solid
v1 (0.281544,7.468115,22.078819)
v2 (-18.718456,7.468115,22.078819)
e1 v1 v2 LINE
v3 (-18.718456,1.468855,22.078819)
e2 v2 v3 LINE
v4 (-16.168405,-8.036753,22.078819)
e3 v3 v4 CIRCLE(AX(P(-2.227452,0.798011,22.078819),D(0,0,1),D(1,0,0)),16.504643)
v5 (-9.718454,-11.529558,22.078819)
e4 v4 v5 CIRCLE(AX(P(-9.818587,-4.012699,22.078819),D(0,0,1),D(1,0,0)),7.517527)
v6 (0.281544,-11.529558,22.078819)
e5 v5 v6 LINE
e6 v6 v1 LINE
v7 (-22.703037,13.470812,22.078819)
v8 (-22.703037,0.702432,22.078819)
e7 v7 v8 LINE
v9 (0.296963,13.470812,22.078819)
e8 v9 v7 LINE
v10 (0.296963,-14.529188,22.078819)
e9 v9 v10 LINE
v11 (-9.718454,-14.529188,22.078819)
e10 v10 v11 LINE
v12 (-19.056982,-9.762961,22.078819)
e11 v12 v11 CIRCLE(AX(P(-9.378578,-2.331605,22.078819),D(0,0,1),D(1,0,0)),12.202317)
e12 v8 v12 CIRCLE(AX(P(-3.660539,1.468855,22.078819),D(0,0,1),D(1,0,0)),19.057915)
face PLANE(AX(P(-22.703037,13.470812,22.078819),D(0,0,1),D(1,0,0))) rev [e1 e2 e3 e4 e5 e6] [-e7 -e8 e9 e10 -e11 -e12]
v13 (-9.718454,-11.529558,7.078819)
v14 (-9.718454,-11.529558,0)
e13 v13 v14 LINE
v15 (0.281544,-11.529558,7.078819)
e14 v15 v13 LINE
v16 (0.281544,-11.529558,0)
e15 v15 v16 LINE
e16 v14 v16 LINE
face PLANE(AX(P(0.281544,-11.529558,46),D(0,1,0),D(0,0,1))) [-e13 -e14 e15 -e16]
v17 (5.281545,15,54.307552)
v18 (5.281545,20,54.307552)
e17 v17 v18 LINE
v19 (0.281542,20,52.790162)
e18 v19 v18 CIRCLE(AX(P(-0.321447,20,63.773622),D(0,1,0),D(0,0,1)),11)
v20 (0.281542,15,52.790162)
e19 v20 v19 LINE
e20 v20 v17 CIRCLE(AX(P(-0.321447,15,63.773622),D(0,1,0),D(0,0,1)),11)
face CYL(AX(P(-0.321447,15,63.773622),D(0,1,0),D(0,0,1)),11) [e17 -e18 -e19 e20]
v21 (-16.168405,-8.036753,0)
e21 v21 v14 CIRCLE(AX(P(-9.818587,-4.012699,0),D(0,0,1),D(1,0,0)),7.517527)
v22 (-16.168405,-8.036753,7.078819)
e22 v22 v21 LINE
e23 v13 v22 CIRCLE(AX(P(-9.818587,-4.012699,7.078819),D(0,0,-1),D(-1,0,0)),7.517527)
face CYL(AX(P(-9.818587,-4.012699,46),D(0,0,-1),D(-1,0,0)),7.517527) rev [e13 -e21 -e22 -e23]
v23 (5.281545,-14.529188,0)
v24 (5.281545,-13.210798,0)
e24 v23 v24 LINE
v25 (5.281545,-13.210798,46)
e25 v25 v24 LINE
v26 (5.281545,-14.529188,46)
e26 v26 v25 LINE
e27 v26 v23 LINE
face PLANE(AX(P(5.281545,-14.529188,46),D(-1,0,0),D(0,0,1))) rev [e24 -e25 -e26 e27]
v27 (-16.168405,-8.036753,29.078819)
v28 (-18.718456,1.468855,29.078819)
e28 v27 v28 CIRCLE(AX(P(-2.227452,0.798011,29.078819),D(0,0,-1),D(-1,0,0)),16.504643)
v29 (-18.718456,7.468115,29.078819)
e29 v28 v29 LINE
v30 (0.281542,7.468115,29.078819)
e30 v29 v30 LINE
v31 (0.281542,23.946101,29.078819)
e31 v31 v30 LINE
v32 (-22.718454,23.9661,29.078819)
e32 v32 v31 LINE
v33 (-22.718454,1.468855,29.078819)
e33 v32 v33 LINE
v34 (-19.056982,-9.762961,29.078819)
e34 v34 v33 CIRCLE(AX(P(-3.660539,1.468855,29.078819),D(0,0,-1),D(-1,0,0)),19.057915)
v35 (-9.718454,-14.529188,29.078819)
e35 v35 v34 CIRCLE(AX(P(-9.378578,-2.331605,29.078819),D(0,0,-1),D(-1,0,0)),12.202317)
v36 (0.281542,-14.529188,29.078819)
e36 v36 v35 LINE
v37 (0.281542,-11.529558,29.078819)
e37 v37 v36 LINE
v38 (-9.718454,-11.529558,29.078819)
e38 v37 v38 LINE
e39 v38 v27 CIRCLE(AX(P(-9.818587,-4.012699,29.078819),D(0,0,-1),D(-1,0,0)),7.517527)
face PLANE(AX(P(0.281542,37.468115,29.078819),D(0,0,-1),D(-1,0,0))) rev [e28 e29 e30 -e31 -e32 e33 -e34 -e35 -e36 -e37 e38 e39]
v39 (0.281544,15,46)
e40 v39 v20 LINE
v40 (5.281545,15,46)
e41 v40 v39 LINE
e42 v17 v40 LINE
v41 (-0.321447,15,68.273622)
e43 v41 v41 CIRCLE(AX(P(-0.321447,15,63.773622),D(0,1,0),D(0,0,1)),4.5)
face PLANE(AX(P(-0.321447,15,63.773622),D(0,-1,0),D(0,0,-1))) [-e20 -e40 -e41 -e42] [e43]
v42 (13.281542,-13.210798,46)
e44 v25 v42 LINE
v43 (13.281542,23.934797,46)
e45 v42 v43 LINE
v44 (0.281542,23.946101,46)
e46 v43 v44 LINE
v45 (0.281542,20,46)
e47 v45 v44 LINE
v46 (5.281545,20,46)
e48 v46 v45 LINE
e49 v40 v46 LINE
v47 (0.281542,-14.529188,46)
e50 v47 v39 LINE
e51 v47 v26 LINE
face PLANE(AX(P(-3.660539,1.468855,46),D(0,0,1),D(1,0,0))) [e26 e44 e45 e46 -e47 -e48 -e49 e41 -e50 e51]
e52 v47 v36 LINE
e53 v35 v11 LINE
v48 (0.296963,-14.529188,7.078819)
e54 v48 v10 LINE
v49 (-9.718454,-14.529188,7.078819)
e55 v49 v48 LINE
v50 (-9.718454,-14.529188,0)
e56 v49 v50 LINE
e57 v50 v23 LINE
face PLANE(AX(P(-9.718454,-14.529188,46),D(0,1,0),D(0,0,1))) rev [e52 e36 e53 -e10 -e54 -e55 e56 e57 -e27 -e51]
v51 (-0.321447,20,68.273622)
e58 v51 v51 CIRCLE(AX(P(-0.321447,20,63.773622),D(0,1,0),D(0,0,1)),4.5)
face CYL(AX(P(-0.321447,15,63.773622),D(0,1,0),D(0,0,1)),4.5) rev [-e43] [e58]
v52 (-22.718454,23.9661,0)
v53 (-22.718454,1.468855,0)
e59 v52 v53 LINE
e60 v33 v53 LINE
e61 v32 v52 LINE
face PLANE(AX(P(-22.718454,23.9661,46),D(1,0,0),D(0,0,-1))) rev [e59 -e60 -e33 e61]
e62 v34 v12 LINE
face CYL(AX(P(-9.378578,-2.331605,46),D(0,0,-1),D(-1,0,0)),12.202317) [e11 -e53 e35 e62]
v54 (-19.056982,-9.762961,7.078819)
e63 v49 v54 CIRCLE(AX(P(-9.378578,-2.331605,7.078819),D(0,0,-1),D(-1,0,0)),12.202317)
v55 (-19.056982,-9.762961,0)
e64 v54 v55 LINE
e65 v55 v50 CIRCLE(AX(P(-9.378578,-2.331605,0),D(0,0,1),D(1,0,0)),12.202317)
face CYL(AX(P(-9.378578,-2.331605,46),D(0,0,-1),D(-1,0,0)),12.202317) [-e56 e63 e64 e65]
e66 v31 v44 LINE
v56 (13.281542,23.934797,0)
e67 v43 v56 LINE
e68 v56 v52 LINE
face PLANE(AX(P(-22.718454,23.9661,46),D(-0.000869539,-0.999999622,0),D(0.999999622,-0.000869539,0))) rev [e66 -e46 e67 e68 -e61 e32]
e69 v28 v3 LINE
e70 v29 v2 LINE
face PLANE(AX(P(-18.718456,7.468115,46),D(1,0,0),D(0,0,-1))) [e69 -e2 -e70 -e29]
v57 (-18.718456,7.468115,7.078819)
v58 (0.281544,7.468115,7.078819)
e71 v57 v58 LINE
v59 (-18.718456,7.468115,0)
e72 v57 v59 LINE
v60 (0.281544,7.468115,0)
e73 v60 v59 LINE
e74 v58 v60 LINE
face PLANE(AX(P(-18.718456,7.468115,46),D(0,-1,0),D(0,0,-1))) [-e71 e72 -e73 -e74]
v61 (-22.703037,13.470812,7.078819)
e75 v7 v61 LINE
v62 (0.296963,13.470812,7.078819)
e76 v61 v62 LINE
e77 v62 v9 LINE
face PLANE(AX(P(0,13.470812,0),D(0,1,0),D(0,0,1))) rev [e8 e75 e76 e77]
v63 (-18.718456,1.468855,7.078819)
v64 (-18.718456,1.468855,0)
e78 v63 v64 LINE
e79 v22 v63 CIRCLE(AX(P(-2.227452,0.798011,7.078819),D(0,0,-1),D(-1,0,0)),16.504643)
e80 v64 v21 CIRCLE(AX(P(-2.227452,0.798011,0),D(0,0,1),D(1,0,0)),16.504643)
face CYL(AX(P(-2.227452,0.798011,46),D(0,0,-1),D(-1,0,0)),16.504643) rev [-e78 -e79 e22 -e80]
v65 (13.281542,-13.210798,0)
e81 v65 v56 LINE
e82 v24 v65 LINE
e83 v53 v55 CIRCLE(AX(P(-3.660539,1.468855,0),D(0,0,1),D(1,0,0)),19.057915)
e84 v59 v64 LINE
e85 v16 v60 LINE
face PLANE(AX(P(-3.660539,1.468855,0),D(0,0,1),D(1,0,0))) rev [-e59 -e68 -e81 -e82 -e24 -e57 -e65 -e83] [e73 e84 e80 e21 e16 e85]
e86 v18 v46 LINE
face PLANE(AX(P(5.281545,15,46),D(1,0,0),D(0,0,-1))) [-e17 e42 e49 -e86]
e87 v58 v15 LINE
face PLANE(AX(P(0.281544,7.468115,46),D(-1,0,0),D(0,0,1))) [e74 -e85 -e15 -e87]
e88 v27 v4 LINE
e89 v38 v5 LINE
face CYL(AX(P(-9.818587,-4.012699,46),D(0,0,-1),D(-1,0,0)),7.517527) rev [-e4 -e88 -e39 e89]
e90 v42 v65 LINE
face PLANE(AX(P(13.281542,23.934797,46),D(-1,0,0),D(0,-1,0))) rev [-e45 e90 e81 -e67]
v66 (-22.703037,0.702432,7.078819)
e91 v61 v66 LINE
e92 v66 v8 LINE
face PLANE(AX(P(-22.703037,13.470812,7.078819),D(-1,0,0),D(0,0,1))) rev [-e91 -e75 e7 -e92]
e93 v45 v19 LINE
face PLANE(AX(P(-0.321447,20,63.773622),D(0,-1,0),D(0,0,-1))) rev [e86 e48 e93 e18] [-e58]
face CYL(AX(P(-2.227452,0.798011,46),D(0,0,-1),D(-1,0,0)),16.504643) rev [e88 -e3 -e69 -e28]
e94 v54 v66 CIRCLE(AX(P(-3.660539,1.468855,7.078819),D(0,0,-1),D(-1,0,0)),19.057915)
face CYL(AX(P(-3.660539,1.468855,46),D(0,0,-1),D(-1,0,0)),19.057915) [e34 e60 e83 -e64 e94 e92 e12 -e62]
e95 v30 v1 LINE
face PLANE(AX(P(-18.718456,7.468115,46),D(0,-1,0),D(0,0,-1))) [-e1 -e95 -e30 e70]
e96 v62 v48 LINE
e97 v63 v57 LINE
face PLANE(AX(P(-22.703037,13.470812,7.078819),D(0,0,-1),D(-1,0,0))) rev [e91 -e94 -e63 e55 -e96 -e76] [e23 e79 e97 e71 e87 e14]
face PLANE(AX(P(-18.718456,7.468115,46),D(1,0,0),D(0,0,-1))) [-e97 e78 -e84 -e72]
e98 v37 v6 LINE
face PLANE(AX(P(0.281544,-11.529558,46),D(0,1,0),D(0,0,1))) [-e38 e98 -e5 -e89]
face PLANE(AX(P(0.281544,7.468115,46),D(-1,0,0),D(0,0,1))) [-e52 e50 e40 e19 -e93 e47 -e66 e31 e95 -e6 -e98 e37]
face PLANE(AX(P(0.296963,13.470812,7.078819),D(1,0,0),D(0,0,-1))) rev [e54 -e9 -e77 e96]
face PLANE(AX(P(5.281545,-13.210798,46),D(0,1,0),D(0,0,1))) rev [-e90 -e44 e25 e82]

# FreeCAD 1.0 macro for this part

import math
import FreeCAD as App
import Part
import Sketcher
from FreeCAD import Vector
Q = App.Units.Quantity

doc = App.newDocument("Part")
params = doc.addObject("Spreadsheet::Sheet", "Params")
for row, (alias, value) in enumerate([
    ("sketch1_width", "15 mm"),
    ("sketch1_width2", "19 mm"),
    ("sketch1_width3", "9.999998 mm"),
    ("pad1_length", "46 mm"),
    ("sketch2_width", "23 mm"),
    ("sketch2_height", "15 mm"),
    ("pocket1_length", "28 mm"),
    ("sketch4_diameter", "22 mm"),
    ("sketch4_diameter2", "9 mm"),
    ("pad2_length", "5 mm"),
    ("sketch5_radius", "11 mm"),
    ("pad3_length", "5 mm"),
], start=1):
    params.set(f"A{row}", alias)
    params.set(f"B{row}", "=" + value)
    params.setAlias(f"B{row}", alias)

body = doc.addObject("PartDesign::Body", "Body")

sketch1 = body.newObject("Sketcher::SketchObject", "Sketch")
sketch1.AttachmentSupport = (doc.getObject("XY_Plane"), [""])
sketch1.MapMode = "FlatFace"
sketch1.addGeometry([
    Part.LineSegment(Vector(13.3, 23.9, 0), Vector(-22.7, 24, 0)),
    Part.LineSegment(Vector(-22.7, 24, 0), Vector(-22.7, 1.5, 0)),
    Part.ArcOfCircle(Part.Circle(Vector(-3.7, 1.5, 0), Vector(0, 0, 1), 19.1), math.radians(180), math.radians(216)),
    Part.ArcOfCircle(Part.Circle(Vector(-9.4, -2.3, 0), Vector(0, 0, 1), 12.2), math.radians(-142), math.radians(-92)),
    Part.LineSegment(Vector(-9.7, -14.5, 0), Vector(5.3, -14.5, 0)),
    Part.LineSegment(Vector(5.3, -14.5, 0), Vector(5.3, -13.2, 0)),
    Part.LineSegment(Vector(5.3, -13.2, 0), Vector(13.3, -13.2, 0)),
    Part.LineSegment(Vector(13.3, -13.2, 0), Vector(13.3, 23.9, 0)),
    Part.LineSegment(Vector(-18.7, 7.5, 0), Vector(0.3, 7.5, 0)),
    Part.LineSegment(Vector(0.3, 7.5, 0), Vector(0.3, -11.5, 0)),
    Part.LineSegment(Vector(0.3, -11.5, 0), Vector(-9.7, -11.5, 0)),
    Part.ArcOfCircle(Part.Circle(Vector(-9.8, -4, 0), Vector(0, 0, 1), 7.5), math.radians(-148), math.radians(-89)),
    Part.ArcOfCircle(Part.Circle(Vector(-2.2, 0.8, 0), Vector(0, 0, 1), 16.5), math.radians(178), math.radians(212)),
    Part.LineSegment(Vector(-18.7, 1.5, 0), Vector(-18.7, 7.5, 0)),
], False)
sketch1.addConstraint([
    Sketcher.Constraint("Coincident", 0, 2, 1, 1),
    Sketcher.Constraint("Tangent", 1, 2, 2, 1),
    Sketcher.Constraint("Coincident", 2, 2, 3, 1),
    Sketcher.Constraint("Coincident", 3, 2, 4, 1),
    Sketcher.Constraint("Coincident", 4, 2, 5, 1),
    Sketcher.Constraint("Coincident", 5, 2, 6, 1),
    Sketcher.Constraint("Coincident", 6, 2, 7, 1),
    Sketcher.Constraint("Coincident", 7, 2, 0, 1),
    Sketcher.Constraint("Coincident", 8, 2, 9, 1),
    Sketcher.Constraint("Coincident", 9, 2, 10, 1),
    Sketcher.Constraint("Coincident", 10, 2, 11, 2),
    Sketcher.Constraint("Tangent", 11, 1, 12, 2),
    Sketcher.Constraint("Coincident", 12, 1, 13, 1),
    Sketcher.Constraint("Coincident", 13, 2, 8, 1),
    Sketcher.Constraint("Vertical", 1),
    Sketcher.Constraint("Horizontal", 4),
    Sketcher.Constraint("Vertical", 5),
    Sketcher.Constraint("Horizontal", 6),
    Sketcher.Constraint("Vertical", 7),
    Sketcher.Constraint("Horizontal", 8),
    Sketcher.Constraint("Vertical", 9),
    Sketcher.Constraint("Horizontal", 10),
    Sketcher.Constraint("Vertical", 13),
    Sketcher.Constraint("Horizontal", 1, 2, 12, 1),
    Sketcher.Constraint("Vertical", 3, 2, 10, 2),
    Sketcher.Constraint("DistanceX", 4, 1, 4, 2, Q("15 mm")),
    Sketcher.Constraint("DistanceX", 8, 1, 8, 2, Q("19 mm")),
    Sketcher.Constraint("DistanceX", 10, 2, 10, 1, Q("9.999998 mm")),
    Sketcher.Constraint("DistanceX", 8, 2, 7, 2, Q("12.999998 mm")),
    Sketcher.Constraint("DistanceX", 1, 2, 12, 1, Q("3.999998 mm")),
    Sketcher.Constraint("Radius", 2, Q("19.057915 mm")),
    Sketcher.Constraint("Radius", 3, Q("12.202317 mm")),
    Sketcher.Constraint("Radius", 11, Q("7.517527 mm")),
    Sketcher.Constraint("Radius", 12, Q("16.504643 mm")),
    Sketcher.Constraint("DistanceX", 0, 2, 12, 3, Q("20.491002 mm")),
    Sketcher.Constraint("DistanceY", 5, 1, 5, 2, Q("1.31839 mm")),
    Sketcher.Constraint("DistanceY", 13, 1, 13, 2, Q("5.99926 mm")),
    Sketcher.Constraint("DistanceY", 11, 3, -1, 1, Q("4.012699 mm")),
    Sketcher.Constraint("DistanceY", -1, 1, 0, 2, Q("23.9661 mm")),
    Sketcher.Constraint("DistanceY", 5, 2, -1, 1, Q("13.210798 mm")),
    Sketcher.Constraint("DistanceY", 3, 2, 12, 3, Q("15.3272 mm")),
    Sketcher.Constraint("DistanceY", 7, 1, 7, 2, Q("37.145595 mm")),
    Sketcher.Constraint("DistanceX", 2, 3, -1, 1, Q("3.660539 mm")),
    Sketcher.Constraint("DistanceX", 2, 2, -1, 1, Q("19.056982 mm")),
])
sketch1.setExpression("Constraints[25]", "Params.sketch1_width")
sketch1.setExpression("Constraints[26]", "Params.sketch1_width2")
sketch1.setExpression("Constraints[27]", "Params.sketch1_width3")
pad1 = body.newObject("PartDesign::Pad", "Pad")
pad1.Profile = sketch1
pad1.setExpression("Length", "Params.pad1_length")

sketch2 = body.newObject("Sketcher::SketchObject", "Sketch001")
sketch2.AttachmentSupport = (doc.getObject("XZ_Plane"), [""])
sketch2.MapMode = "FlatFace"
sketch2.AttachmentOffset = App.Placement(Vector(0, 0, 14.529188), App.Rotation())
sketch2.addGeometry([
    Part.LineSegment(Vector(-23, 22, 0), Vector(-23, 7, 0)),
    Part.LineSegment(Vector(-23, 7, 0), Vector(0, 7, 0)),
    Part.LineSegment(Vector(0, 7, 0), Vector(0, 22, 0)),
    Part.LineSegment(Vector(0, 22, 0), Vector(-23, 22, 0)),
], False)
sketch2.addConstraint([
    Sketcher.Constraint("Coincident", 0, 2, 1, 1),
    Sketcher.Constraint("Coincident", 1, 2, 2, 1),
    Sketcher.Constraint("Coincident", 2, 2, 3, 1),
    Sketcher.Constraint("Coincident", 3, 2, 0, 1),
    Sketcher.Constraint("Vertical", 0),
    Sketcher.Constraint("Horizontal", 1),
    Sketcher.Constraint("Vertical", 2),
    Sketcher.Constraint("Horizontal", 3),
    Sketcher.Constraint("DistanceX", 1, 1, 1, 2, Q("23 mm")),
    Sketcher.Constraint("DistanceY", 0, 2, 0, 1, Q("15 mm")),
    Sketcher.Constraint("DistanceY", -1, 1, 0, 2, Q("7.078819 mm")),
    Sketcher.Constraint("DistanceX", 0, 2, -1, 1, Q("22.703037 mm")),
])
sketch2.setExpression("Constraints[8]", "Params.sketch2_width")
sketch2.setExpression("Constraints[9]", "Params.sketch2_height")
pocket1 = body.newObject("PartDesign::Pocket", "Pocket")
pocket1.Profile = sketch2
pocket1.setExpression("Length", "Params.pocket1_length")

sketch3 = body.newObject("Sketcher::SketchObject", "Sketch002")
sketch3.AttachmentSupport = (doc.getObject("XZ_Plane"), [""])
sketch3.MapMode = "FlatFace"
sketch3.AttachmentOffset = App.Placement(Vector(0, 0, -7.468115), App.Rotation())
sketch3.addGeometry([
    Part.LineSegment(Vector(0, 29, 0), Vector(0, 46, 0)),
    Part.LineSegment(Vector(0, 46, 0), Vector(-23, 46, 0)),
    Part.LineSegment(Vector(-23, 46, 0), Vector(-23, 29, 0)),
    Part.LineSegment(Vector(-23, 29, 0), Vector(0, 29, 0)),
], False)
sketch3.addConstraint([
    Sketcher.Constraint("Coincident", 0, 2, 1, 1),
    Sketcher.Constraint("Coincident", 1, 2, 2, 1),
    Sketcher.Constraint("Coincident", 2, 2, 3, 1),
    Sketcher.Constraint("Coincident", 3, 2, 0, 1),
    Sketcher.Constraint("Vertical", 0),
    Sketcher.Constraint("Horizontal", 1),
    Sketcher.Constraint("Vertical", 2),
    Sketcher.Constraint("Horizontal", 3),
    Sketcher.Constraint("DistanceY", -1, 1, 0, 2, Q("46 mm")),
    Sketcher.Constraint("DistanceY", 0, 1, 0, 2, Q("16.921181 mm")),
    Sketcher.Constraint("DistanceX", 1, 2, 1, 1, Q("22.999996 mm")),
    Sketcher.Constraint("DistanceX", -1, 1, 0, 2, Q("0.281542 mm")),
])
pocket2 = body.newObject("PartDesign::Pocket", "Pocket001")
pocket2.Profile = sketch3
pocket2.Type = "ThroughAll"
pocket2.Midplane = True
body2 = doc.addObject("PartDesign::Body", "Body001")

sketch4 = body2.newObject("Sketcher::SketchObject", "Sketch003")
sketch4.AttachmentSupport = (doc.getObject("XZ_Plane001"), [""])
sketch4.MapMode = "FlatFace"
sketch4.AttachmentOffset = App.Placement(Vector(0, 0, -20), App.Rotation())
sketch4.addGeometry([
    Part.Circle(Vector(-0.3, 63.8, 0), Vector(0, 0, 1), 11),
    Part.Circle(Vector(-0.3, 63.8, 0), Vector(0, 0, 1), 4.5),
], False)
sketch4.addConstraint([
    Sketcher.Constraint("Coincident", 1, 3, 0, 3),
    Sketcher.Constraint("Diameter", 0, Q("22 mm")),
    Sketcher.Constraint("Diameter", 1, Q("9 mm")),
    Sketcher.Constraint("DistanceY", -1, 1, 0, 3, Q("63.773622 mm")),
    Sketcher.Constraint("DistanceX", 0, 3, -1, 1, Q("0.321447 mm")),
])
sketch4.setExpression("Constraints[1]", "Params.sketch4_diameter")
sketch4.setExpression("Constraints[2]", "Params.sketch4_diameter2")
pad2 = body2.newObject("PartDesign::Pad", "Pad001")
pad2.Profile = sketch4
pad2.setExpression("Length", "Params.pad2_length")
body.AllowCompound = True
doc.recompute()

boolean = body.newObject("PartDesign::Boolean", "Boolean")
boolean.Type = "Fuse"
boolean.addObjects([body2])

sketch5 = body.newObject("Sketcher::SketchObject", "Sketch004")
sketch5.AttachmentSupport = (doc.getObject("XZ_Plane"), [""])
sketch5.MapMode = "FlatFace"
sketch5.AttachmentOffset = App.Placement(Vector(0, 0, -20), App.Rotation())
sketch5.addGeometry([
    Part.LineSegment(Vector(0, 46, 0), Vector(0, 53, 0)),
    Part.ArcOfCircle(Part.Circle(Vector(0, 64, 0), Vector(0, 0, 1), 11), math.radians(-87), math.radians(-59)),
    Part.LineSegment(Vector(5, 54, 0), Vector(5, 46, 0)),
    Part.LineSegment(Vector(5, 46, 0), Vector(0, 46, 0)),
], False)
sketch5.addConstraint([
    Sketcher.Constraint("Coincident", 0, 2, 1, 1),
    Sketcher.Constraint("Coincident", 1, 2, 2, 1),
    Sketcher.Constraint("Coincident", 2, 2, 3, 1),
    Sketcher.Constraint("Coincident", 3, 2, 0, 1),
    Sketcher.Constraint("Vertical", 0),
    Sketcher.Constraint("Vertical", 2),
    Sketcher.Constraint("Horizontal", 3),
    Sketcher.Constraint("Radius", 1, Q("11 mm")),
    Sketcher.Constraint("DistanceY", -1, 1, 2, 2, Q("46 mm")),
    Sketcher.Constraint("DistanceY", 0, 1, 0, 2, Q("6.790162 mm")),
    Sketcher.Constraint("DistanceX", 3, 2, 3, 1, Q("5.000003 mm")),
    Sketcher.Constraint("DistanceY", 2, 2, 2, 1, Q("8.307552 mm")),
    Sketcher.Constraint("DistanceX", 1, 3, -1, 1, Q("0.321447 mm")),
])
sketch5.setExpression("Constraints[7]", "Params.sketch5_radius")
pad3 = body.newObject("PartDesign::Pad", "Pad002")
pad3.Profile = sketch5
pad3.setExpression("Length", "Params.pad3_length")

doc.recompute()
